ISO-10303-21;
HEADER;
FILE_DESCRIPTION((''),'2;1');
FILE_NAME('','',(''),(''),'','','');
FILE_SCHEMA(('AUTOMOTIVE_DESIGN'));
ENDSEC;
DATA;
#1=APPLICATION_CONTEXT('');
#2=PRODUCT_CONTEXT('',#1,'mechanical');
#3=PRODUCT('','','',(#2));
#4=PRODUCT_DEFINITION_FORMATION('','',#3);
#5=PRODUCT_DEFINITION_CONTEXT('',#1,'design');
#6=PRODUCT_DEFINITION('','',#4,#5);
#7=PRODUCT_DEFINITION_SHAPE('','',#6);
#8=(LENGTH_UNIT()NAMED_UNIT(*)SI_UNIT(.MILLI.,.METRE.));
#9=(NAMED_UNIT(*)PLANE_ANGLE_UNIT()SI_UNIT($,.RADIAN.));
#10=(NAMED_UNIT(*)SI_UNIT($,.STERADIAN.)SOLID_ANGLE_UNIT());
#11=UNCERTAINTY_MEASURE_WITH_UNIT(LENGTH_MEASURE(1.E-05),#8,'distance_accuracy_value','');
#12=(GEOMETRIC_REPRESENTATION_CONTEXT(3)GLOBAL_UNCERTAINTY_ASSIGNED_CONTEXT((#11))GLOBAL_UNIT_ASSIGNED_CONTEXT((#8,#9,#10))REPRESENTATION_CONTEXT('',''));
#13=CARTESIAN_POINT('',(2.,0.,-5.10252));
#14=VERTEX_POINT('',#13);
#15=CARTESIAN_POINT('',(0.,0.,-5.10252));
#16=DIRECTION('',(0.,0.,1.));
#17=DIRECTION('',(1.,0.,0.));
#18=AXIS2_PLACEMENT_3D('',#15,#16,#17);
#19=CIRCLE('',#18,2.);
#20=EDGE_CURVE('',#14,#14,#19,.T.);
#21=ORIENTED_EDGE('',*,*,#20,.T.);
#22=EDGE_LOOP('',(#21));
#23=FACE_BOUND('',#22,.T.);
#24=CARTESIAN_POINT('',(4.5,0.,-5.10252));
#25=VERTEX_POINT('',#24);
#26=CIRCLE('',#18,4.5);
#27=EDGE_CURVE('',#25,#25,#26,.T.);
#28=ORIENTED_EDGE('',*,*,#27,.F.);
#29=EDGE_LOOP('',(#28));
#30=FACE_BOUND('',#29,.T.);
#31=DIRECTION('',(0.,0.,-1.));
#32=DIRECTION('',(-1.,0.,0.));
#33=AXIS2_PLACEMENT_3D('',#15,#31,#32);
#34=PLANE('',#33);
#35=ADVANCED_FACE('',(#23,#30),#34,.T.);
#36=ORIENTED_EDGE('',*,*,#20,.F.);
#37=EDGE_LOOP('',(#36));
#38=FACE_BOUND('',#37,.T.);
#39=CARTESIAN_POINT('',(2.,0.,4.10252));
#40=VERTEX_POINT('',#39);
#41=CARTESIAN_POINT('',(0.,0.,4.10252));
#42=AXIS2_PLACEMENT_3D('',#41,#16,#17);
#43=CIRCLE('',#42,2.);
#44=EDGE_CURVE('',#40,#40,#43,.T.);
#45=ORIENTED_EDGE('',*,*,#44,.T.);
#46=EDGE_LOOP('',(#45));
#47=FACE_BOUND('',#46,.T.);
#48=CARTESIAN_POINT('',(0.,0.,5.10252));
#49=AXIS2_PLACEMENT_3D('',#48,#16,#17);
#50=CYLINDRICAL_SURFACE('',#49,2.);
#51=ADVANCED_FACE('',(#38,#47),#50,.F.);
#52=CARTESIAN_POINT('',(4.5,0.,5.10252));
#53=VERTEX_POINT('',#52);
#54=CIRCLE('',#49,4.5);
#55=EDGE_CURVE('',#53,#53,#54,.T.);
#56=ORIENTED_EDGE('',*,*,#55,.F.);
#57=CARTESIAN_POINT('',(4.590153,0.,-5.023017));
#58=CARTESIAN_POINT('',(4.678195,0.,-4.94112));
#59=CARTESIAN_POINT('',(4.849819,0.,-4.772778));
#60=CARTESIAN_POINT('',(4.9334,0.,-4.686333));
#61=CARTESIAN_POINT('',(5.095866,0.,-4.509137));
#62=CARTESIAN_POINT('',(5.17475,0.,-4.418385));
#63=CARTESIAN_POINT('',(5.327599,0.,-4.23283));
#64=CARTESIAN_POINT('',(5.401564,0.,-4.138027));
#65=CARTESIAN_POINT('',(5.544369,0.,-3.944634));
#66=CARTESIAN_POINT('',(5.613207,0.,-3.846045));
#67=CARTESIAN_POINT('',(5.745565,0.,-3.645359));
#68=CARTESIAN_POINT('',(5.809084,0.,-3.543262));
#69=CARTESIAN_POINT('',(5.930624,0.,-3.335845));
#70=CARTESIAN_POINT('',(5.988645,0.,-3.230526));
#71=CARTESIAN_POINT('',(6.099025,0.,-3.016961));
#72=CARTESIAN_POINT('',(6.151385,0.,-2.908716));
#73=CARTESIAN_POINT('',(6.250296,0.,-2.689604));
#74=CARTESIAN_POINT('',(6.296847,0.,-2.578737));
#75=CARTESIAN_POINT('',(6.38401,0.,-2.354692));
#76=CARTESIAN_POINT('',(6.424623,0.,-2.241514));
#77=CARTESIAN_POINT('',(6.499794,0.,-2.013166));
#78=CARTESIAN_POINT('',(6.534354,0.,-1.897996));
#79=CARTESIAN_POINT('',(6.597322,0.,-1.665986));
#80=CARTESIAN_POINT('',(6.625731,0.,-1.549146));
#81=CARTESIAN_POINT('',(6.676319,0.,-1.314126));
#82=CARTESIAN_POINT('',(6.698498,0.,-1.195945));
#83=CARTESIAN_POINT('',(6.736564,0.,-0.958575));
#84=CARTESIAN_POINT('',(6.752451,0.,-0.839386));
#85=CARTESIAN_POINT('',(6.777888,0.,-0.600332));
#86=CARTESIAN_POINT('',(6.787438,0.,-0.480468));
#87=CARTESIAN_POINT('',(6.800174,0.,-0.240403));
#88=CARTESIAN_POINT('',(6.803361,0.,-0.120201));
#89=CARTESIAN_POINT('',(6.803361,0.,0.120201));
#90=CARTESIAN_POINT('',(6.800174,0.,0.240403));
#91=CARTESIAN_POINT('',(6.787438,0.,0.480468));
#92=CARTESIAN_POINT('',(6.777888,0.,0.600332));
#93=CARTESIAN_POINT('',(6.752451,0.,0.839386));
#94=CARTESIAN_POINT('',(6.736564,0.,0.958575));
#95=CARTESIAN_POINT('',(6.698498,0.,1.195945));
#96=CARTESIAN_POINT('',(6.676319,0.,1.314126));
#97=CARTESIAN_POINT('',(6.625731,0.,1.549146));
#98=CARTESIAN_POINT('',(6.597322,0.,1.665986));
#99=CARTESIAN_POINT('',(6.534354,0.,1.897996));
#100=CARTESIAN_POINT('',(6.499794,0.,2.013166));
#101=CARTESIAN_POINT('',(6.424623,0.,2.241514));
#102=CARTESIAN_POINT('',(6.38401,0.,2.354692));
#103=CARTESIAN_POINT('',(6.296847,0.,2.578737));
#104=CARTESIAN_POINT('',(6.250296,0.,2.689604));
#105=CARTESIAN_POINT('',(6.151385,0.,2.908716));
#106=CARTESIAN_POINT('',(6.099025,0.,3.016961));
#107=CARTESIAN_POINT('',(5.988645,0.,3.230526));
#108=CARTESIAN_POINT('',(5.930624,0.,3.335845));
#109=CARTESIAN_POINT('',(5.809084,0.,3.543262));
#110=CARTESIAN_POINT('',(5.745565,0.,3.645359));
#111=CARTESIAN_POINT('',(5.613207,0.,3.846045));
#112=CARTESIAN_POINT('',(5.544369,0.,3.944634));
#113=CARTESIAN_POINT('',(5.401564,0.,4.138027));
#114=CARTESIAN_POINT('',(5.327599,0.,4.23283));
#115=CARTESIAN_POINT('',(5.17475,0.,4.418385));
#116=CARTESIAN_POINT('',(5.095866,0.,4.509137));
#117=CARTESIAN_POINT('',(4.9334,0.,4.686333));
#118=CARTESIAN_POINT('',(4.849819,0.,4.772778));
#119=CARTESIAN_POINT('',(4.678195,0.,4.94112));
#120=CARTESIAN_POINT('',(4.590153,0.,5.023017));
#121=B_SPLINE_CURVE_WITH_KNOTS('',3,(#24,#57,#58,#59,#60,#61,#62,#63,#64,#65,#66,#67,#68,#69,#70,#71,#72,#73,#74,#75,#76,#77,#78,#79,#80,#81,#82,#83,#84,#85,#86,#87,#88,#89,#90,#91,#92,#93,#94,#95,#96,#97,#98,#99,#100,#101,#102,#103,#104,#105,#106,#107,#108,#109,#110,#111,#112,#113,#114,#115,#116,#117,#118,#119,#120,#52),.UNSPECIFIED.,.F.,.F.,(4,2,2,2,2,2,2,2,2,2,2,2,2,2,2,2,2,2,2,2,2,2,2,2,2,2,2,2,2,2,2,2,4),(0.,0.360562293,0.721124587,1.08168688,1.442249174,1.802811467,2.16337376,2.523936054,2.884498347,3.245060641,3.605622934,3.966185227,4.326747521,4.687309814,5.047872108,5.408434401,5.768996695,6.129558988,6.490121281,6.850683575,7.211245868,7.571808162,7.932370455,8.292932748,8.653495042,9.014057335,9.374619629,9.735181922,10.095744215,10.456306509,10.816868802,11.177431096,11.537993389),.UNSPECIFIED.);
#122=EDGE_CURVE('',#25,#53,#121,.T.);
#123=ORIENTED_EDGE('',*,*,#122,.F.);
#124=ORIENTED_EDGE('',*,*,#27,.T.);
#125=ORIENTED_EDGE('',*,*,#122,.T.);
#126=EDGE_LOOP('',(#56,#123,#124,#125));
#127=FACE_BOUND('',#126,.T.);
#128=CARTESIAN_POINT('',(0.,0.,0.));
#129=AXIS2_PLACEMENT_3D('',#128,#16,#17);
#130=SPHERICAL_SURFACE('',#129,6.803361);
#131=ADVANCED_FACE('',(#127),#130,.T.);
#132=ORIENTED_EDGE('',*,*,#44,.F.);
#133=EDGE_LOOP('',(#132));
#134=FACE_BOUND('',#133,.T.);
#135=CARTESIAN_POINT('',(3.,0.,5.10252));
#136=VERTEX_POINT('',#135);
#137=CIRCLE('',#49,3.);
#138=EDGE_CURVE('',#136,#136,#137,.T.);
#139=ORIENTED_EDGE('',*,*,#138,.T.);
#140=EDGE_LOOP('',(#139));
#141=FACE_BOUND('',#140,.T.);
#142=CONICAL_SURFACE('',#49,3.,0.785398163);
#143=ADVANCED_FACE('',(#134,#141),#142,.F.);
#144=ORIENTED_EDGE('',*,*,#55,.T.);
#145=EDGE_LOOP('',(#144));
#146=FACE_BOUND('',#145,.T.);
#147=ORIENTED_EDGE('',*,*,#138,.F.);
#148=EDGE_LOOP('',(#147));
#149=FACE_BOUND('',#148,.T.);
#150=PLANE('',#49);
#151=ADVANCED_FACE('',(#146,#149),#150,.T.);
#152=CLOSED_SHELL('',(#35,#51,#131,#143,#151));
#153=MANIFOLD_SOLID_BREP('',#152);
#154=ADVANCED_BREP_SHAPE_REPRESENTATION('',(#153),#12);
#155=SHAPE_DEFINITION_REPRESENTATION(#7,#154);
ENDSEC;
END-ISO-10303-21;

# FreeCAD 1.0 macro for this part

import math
import FreeCAD as App
import Part
import Sketcher
Q = App.Units.Quantity

doc = App.newDocument("Part")
body = doc.addObject("PartDesign::Body", "Body")

sketch1 = doc.addObject("Sketcher::SketchObject", "Sketch")
body.addObject(sketch1)
sketch1.AttachmentSupport = (doc.XZ_Plane, [""])
sketch1.MapMode = "FlatFace"
sketch1.addGeometry([
    Part.LineSegment(App.Vector(0, -5.1, 0), App.Vector(0, 5.1, 0)),
    Part.LineSegment(App.Vector(0, 5.1, 0), App.Vector(4.5, 5.1, 0)),
    Part.ArcOfCircle(Part.Circle(App.Vector(0, 0, 0), App.Vector(0, 0, 1), 6.8), math.radians(-49), math.radians(49)),
    Part.LineSegment(App.Vector(4.5, -5.1, 0), App.Vector(0, -5.1, 0)),
], False)
sketch1.addConstraint([
    Sketcher.Constraint("Coincident", 0, 2, 1, 1),
    Sketcher.Constraint("Coincident", 1, 2, 2, 2),
    Sketcher.Constraint("Coincident", 2, 1, 3, 1),
    Sketcher.Constraint("Coincident", 3, 2, 0, 1),
    Sketcher.Constraint("Vertical", 0),
    Sketcher.Constraint("Horizontal", 1),
    Sketcher.Constraint("Horizontal", 3),
    Sketcher.Constraint("Coincident", 2, 3, -1, 1),
    Sketcher.Constraint("Symmetric", 0, 2, 3, 2, -1, 1),
    Sketcher.Constraint("DistanceX", 1, 1, 1, 2, Q("4.5 mm")),
    Sketcher.Constraint("Radius", 2, Q("6.803361 mm")),
])
revolution = doc.addObject("PartDesign::Revolution", "Revolution")
body.addObject(revolution)
revolution.Profile = sketch1
revolution.ReferenceAxis = (sketch1, ["V_Axis"])
revolution.Angle = 360

sketch2 = doc.addObject("Sketcher::SketchObject", "Sketch001")
body.addObject(sketch2)
sketch2.AttachmentSupport = (doc.XY_Plane, [""])
sketch2.MapMode = "FlatFace"
sketch2.AttachmentOffset = App.Placement(App.Vector(0, 0, 5.10252), App.Rotation())
sketch2.addGeometry(Part.Circle(App.Vector(0, 0, 0), App.Vector(0, 0, 1), 2), False)
sketch2.addConstraint([
    Sketcher.Constraint("Coincident", 0, 3, -1, 1),
    Sketcher.Constraint("Diameter", 0, Q("4 mm")),
])
doc.recompute()
hole = doc.addObject("PartDesign::Hole", "Hole")
body.addObject(hole)
hole.Profile = sketch2
hole.ThreadType = "None"
hole.Diameter = 4
hole.DepthType = "ThroughAll"
hole.HoleCutType = "Countersink"
hole.HoleCutDiameter = 6
hole.HoleCutCountersinkAngle = 90

doc.recompute()
